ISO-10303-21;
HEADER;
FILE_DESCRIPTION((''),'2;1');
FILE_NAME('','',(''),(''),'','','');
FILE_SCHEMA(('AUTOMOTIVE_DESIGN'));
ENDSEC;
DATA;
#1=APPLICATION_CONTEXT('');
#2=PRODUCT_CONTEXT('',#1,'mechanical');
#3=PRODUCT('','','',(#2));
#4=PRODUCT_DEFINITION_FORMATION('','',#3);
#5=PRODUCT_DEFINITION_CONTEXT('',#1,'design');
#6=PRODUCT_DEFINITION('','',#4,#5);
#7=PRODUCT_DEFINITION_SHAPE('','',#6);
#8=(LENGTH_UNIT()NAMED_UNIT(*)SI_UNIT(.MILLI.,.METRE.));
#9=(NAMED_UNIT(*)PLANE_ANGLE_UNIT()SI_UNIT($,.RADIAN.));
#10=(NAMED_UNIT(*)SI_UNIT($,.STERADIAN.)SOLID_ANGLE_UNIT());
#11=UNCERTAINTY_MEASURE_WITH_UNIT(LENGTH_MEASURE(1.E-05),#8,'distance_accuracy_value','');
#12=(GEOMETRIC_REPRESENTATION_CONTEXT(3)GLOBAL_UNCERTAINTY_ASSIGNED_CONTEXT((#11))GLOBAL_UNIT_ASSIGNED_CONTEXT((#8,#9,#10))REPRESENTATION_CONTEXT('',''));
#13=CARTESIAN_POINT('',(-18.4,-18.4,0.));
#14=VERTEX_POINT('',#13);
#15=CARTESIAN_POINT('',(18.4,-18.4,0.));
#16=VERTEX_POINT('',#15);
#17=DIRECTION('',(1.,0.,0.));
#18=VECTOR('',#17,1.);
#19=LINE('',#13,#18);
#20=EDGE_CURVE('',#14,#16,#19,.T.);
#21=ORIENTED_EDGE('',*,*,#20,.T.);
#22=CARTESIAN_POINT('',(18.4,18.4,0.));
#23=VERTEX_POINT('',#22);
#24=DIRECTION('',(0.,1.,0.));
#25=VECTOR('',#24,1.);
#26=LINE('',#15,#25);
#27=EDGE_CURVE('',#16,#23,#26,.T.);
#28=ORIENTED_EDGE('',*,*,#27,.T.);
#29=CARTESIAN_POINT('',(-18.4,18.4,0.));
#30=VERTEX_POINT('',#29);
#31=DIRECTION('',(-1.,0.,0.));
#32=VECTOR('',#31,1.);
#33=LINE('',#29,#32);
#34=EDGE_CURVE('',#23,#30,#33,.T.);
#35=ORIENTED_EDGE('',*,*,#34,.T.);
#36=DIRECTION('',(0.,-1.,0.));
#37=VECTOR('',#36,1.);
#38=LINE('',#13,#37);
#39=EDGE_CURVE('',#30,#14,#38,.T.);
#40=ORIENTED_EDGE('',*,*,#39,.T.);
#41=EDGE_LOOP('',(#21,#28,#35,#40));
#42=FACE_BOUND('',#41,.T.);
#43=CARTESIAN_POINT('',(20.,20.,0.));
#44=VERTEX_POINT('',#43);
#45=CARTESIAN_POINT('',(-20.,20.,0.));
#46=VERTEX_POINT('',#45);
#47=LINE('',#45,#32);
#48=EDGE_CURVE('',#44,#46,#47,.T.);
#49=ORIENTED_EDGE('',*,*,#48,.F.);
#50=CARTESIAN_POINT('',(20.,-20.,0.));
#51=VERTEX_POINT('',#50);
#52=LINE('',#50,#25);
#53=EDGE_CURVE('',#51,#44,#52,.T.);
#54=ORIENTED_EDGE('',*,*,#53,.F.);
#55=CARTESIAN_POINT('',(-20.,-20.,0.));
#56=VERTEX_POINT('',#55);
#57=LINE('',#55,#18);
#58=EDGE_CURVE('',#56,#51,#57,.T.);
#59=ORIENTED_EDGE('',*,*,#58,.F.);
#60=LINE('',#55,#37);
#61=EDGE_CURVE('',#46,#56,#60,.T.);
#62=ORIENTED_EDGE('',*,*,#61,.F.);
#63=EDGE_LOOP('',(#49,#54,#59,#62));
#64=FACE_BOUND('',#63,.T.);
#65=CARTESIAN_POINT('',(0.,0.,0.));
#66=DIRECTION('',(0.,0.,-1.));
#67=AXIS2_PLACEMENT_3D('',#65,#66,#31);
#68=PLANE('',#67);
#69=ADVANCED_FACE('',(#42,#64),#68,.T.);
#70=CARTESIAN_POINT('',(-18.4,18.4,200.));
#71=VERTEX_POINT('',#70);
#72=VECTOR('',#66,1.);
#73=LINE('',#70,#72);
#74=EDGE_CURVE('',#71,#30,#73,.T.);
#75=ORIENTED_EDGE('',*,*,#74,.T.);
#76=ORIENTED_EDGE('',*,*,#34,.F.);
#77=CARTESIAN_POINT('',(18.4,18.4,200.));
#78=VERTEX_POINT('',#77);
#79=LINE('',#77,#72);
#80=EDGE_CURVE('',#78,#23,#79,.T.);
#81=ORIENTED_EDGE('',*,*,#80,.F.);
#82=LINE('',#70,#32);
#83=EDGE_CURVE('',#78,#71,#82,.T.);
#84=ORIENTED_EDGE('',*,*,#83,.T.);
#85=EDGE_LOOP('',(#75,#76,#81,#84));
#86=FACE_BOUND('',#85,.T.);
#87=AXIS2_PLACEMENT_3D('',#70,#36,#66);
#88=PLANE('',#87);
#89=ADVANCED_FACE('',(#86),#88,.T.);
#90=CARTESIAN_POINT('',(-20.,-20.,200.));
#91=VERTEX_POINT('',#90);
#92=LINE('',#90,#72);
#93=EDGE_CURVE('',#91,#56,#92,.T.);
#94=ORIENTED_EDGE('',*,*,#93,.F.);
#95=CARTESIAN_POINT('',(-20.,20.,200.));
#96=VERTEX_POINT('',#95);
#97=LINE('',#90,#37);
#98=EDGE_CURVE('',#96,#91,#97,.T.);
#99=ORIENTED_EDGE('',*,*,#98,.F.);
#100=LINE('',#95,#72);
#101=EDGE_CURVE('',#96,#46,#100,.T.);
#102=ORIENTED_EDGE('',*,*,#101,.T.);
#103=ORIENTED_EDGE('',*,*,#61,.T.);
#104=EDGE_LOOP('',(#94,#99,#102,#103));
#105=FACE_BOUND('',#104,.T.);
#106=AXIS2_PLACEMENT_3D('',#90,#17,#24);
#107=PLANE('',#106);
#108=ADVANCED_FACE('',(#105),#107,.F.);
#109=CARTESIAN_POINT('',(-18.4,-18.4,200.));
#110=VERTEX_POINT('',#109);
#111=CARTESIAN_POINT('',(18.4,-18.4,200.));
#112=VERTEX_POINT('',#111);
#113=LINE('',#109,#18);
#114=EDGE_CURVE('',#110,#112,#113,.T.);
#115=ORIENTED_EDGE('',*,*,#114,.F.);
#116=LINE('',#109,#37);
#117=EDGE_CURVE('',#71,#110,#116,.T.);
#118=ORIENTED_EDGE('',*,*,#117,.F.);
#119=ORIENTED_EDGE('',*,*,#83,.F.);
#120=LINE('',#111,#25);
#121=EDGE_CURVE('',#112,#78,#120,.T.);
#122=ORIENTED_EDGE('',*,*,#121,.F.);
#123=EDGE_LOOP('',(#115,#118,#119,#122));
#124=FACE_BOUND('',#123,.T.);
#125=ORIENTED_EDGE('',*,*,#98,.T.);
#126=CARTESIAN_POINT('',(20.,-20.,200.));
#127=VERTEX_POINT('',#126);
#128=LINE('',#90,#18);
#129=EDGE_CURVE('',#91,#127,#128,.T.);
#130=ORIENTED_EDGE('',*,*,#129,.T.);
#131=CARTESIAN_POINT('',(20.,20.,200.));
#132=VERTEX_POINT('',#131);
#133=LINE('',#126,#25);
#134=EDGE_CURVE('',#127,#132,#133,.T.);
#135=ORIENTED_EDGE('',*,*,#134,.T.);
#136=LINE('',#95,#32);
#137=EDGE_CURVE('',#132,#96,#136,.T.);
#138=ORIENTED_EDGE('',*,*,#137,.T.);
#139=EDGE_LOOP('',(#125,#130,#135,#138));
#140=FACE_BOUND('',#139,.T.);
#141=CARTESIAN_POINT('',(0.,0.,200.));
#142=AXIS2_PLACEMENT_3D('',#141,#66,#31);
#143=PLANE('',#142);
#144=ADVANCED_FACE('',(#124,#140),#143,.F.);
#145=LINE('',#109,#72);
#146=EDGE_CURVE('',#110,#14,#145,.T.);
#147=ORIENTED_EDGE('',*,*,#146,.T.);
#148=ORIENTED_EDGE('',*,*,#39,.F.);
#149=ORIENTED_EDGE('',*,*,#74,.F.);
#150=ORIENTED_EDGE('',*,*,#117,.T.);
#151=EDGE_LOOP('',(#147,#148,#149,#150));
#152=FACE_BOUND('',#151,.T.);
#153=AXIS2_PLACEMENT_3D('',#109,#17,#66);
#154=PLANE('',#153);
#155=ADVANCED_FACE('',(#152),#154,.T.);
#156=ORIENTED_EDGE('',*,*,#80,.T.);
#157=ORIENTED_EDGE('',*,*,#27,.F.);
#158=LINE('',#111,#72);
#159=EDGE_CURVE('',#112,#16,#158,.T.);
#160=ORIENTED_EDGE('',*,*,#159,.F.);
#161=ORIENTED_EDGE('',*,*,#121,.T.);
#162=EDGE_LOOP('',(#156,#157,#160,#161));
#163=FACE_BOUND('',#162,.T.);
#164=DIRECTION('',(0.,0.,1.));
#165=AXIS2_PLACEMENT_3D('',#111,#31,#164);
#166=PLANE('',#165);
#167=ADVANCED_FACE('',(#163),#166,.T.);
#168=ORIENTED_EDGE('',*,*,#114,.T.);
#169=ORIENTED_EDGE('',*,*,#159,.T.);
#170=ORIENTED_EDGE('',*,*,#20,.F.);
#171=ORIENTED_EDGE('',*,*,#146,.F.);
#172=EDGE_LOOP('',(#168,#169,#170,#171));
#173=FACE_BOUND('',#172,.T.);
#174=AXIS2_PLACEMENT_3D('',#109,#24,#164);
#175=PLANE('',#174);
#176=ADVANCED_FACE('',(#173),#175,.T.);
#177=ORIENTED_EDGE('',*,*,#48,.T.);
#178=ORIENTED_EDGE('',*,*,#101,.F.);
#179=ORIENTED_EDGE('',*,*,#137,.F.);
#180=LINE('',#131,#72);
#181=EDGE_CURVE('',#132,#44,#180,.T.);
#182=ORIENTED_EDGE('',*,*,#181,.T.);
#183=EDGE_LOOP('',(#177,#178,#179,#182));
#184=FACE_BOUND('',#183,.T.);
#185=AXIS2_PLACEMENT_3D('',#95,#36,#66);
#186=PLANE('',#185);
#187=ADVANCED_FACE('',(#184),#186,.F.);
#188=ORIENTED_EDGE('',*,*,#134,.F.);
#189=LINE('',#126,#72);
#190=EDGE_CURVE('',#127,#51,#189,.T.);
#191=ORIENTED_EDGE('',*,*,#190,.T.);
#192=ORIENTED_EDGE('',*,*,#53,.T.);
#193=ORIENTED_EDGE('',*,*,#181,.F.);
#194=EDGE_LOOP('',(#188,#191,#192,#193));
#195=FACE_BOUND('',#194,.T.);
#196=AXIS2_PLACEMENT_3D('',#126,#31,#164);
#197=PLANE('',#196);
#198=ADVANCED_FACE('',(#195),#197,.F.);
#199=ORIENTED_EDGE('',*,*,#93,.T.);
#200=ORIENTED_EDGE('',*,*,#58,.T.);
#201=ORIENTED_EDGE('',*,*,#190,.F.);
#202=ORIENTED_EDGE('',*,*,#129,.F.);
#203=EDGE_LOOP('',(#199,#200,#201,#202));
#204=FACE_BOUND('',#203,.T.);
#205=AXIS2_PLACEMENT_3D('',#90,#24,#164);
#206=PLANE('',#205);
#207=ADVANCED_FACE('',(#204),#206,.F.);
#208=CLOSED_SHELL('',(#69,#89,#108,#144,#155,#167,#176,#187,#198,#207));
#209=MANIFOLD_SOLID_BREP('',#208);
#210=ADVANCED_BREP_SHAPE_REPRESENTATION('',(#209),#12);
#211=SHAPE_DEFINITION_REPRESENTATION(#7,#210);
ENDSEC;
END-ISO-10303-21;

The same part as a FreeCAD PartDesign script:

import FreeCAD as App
import Part
import Sketcher

V = App.Vector


def add_polygon(sketch, points):
    """Adds a closed chain of lines whose ends are joined by coincident constraints."""
    first, n = sketch.GeometryCount, len(points)
    for a, b in zip(points, points[1:] + points[:1]):
        sketch.addGeometry(Part.LineSegment(App.Vector(*a, 0), App.Vector(*b, 0)), False)
    for i in range(n):
        sketch.addConstraint(Sketcher.Constraint("Coincident", first + i, 2, first + (i + 1) % n, 1))

doc = App.newDocument("Part")
params = doc.addObject("Spreadsheet::Sheet", "Params")
for row, (alias, value) in enumerate([
    ("sketch1_width", "40 mm"),
    ("sketch1_width2", "36.8 mm"),
    ("pad1_length", "200 mm"),
], start=1):
    params.set(f"A{row}", alias)
    params.set(f"B{row}", "=" + value)
    params.setAlias(f"B{row}", alias)

body = doc.addObject("PartDesign::Body", "Body")

# Sketch on XY plane
sketch1 = body.newObject("Sketcher::SketchObject", "Sketch")
sketch1.AttachmentSupport = (doc.getObject("XY_Plane"), [""])
sketch1.MapMode = "FlatFace"
add_polygon(sketch1, [(-20, 20), (-20, -20), (20, -20), (20, 20)])  # lines 0-3
add_polygon(sketch1, [(18, -18), (-18, -18), (-18, 18), (18, 18)])  # lines 4-7
sketch1.addConstraint(Sketcher.Constraint("Vertical", 0))
sketch1.addConstraint(Sketcher.Constraint("Horizontal", 1))
sketch1.addConstraint(Sketcher.Constraint("Vertical", 2))
sketch1.addConstraint(Sketcher.Constraint("Horizontal", 3))
sketch1.addConstraint(Sketcher.Constraint("Horizontal", 4))
sketch1.addConstraint(Sketcher.Constraint("Vertical", 5))
sketch1.addConstraint(Sketcher.Constraint("Horizontal", 6))
sketch1.addConstraint(Sketcher.Constraint("Vertical", 7))
sketch1.addConstraint(Sketcher.Constraint("Symmetric", 0, 2, 2, 2, -1, 1))
sketch1.addConstraint(Sketcher.Constraint("Symmetric", 4, 2, 6, 2, -1, 1))
sketch1.addConstraint(Sketcher.Constraint("Equal", 3, 0))
sketch1.addConstraint(Sketcher.Constraint("Equal", 6, 5))
sketch1.addConstraint(Sketcher.Constraint("DistanceX", 1, 1, 1, 2, 40.0))
sketch1.addConstraint(Sketcher.Constraint("DistanceX", 4, 2, 4, 1, 36.8))
sketch1.setExpression("Constraints[20]", "Params.sketch1_width")
sketch1.setExpression("Constraints[21]", "Params.sketch1_width2")
pad1 = body.newObject("PartDesign::Pad", "Pad")
pad1.Profile = sketch1
pad1.setExpression("Length", "Params.pad1_length")

doc.recompute()
